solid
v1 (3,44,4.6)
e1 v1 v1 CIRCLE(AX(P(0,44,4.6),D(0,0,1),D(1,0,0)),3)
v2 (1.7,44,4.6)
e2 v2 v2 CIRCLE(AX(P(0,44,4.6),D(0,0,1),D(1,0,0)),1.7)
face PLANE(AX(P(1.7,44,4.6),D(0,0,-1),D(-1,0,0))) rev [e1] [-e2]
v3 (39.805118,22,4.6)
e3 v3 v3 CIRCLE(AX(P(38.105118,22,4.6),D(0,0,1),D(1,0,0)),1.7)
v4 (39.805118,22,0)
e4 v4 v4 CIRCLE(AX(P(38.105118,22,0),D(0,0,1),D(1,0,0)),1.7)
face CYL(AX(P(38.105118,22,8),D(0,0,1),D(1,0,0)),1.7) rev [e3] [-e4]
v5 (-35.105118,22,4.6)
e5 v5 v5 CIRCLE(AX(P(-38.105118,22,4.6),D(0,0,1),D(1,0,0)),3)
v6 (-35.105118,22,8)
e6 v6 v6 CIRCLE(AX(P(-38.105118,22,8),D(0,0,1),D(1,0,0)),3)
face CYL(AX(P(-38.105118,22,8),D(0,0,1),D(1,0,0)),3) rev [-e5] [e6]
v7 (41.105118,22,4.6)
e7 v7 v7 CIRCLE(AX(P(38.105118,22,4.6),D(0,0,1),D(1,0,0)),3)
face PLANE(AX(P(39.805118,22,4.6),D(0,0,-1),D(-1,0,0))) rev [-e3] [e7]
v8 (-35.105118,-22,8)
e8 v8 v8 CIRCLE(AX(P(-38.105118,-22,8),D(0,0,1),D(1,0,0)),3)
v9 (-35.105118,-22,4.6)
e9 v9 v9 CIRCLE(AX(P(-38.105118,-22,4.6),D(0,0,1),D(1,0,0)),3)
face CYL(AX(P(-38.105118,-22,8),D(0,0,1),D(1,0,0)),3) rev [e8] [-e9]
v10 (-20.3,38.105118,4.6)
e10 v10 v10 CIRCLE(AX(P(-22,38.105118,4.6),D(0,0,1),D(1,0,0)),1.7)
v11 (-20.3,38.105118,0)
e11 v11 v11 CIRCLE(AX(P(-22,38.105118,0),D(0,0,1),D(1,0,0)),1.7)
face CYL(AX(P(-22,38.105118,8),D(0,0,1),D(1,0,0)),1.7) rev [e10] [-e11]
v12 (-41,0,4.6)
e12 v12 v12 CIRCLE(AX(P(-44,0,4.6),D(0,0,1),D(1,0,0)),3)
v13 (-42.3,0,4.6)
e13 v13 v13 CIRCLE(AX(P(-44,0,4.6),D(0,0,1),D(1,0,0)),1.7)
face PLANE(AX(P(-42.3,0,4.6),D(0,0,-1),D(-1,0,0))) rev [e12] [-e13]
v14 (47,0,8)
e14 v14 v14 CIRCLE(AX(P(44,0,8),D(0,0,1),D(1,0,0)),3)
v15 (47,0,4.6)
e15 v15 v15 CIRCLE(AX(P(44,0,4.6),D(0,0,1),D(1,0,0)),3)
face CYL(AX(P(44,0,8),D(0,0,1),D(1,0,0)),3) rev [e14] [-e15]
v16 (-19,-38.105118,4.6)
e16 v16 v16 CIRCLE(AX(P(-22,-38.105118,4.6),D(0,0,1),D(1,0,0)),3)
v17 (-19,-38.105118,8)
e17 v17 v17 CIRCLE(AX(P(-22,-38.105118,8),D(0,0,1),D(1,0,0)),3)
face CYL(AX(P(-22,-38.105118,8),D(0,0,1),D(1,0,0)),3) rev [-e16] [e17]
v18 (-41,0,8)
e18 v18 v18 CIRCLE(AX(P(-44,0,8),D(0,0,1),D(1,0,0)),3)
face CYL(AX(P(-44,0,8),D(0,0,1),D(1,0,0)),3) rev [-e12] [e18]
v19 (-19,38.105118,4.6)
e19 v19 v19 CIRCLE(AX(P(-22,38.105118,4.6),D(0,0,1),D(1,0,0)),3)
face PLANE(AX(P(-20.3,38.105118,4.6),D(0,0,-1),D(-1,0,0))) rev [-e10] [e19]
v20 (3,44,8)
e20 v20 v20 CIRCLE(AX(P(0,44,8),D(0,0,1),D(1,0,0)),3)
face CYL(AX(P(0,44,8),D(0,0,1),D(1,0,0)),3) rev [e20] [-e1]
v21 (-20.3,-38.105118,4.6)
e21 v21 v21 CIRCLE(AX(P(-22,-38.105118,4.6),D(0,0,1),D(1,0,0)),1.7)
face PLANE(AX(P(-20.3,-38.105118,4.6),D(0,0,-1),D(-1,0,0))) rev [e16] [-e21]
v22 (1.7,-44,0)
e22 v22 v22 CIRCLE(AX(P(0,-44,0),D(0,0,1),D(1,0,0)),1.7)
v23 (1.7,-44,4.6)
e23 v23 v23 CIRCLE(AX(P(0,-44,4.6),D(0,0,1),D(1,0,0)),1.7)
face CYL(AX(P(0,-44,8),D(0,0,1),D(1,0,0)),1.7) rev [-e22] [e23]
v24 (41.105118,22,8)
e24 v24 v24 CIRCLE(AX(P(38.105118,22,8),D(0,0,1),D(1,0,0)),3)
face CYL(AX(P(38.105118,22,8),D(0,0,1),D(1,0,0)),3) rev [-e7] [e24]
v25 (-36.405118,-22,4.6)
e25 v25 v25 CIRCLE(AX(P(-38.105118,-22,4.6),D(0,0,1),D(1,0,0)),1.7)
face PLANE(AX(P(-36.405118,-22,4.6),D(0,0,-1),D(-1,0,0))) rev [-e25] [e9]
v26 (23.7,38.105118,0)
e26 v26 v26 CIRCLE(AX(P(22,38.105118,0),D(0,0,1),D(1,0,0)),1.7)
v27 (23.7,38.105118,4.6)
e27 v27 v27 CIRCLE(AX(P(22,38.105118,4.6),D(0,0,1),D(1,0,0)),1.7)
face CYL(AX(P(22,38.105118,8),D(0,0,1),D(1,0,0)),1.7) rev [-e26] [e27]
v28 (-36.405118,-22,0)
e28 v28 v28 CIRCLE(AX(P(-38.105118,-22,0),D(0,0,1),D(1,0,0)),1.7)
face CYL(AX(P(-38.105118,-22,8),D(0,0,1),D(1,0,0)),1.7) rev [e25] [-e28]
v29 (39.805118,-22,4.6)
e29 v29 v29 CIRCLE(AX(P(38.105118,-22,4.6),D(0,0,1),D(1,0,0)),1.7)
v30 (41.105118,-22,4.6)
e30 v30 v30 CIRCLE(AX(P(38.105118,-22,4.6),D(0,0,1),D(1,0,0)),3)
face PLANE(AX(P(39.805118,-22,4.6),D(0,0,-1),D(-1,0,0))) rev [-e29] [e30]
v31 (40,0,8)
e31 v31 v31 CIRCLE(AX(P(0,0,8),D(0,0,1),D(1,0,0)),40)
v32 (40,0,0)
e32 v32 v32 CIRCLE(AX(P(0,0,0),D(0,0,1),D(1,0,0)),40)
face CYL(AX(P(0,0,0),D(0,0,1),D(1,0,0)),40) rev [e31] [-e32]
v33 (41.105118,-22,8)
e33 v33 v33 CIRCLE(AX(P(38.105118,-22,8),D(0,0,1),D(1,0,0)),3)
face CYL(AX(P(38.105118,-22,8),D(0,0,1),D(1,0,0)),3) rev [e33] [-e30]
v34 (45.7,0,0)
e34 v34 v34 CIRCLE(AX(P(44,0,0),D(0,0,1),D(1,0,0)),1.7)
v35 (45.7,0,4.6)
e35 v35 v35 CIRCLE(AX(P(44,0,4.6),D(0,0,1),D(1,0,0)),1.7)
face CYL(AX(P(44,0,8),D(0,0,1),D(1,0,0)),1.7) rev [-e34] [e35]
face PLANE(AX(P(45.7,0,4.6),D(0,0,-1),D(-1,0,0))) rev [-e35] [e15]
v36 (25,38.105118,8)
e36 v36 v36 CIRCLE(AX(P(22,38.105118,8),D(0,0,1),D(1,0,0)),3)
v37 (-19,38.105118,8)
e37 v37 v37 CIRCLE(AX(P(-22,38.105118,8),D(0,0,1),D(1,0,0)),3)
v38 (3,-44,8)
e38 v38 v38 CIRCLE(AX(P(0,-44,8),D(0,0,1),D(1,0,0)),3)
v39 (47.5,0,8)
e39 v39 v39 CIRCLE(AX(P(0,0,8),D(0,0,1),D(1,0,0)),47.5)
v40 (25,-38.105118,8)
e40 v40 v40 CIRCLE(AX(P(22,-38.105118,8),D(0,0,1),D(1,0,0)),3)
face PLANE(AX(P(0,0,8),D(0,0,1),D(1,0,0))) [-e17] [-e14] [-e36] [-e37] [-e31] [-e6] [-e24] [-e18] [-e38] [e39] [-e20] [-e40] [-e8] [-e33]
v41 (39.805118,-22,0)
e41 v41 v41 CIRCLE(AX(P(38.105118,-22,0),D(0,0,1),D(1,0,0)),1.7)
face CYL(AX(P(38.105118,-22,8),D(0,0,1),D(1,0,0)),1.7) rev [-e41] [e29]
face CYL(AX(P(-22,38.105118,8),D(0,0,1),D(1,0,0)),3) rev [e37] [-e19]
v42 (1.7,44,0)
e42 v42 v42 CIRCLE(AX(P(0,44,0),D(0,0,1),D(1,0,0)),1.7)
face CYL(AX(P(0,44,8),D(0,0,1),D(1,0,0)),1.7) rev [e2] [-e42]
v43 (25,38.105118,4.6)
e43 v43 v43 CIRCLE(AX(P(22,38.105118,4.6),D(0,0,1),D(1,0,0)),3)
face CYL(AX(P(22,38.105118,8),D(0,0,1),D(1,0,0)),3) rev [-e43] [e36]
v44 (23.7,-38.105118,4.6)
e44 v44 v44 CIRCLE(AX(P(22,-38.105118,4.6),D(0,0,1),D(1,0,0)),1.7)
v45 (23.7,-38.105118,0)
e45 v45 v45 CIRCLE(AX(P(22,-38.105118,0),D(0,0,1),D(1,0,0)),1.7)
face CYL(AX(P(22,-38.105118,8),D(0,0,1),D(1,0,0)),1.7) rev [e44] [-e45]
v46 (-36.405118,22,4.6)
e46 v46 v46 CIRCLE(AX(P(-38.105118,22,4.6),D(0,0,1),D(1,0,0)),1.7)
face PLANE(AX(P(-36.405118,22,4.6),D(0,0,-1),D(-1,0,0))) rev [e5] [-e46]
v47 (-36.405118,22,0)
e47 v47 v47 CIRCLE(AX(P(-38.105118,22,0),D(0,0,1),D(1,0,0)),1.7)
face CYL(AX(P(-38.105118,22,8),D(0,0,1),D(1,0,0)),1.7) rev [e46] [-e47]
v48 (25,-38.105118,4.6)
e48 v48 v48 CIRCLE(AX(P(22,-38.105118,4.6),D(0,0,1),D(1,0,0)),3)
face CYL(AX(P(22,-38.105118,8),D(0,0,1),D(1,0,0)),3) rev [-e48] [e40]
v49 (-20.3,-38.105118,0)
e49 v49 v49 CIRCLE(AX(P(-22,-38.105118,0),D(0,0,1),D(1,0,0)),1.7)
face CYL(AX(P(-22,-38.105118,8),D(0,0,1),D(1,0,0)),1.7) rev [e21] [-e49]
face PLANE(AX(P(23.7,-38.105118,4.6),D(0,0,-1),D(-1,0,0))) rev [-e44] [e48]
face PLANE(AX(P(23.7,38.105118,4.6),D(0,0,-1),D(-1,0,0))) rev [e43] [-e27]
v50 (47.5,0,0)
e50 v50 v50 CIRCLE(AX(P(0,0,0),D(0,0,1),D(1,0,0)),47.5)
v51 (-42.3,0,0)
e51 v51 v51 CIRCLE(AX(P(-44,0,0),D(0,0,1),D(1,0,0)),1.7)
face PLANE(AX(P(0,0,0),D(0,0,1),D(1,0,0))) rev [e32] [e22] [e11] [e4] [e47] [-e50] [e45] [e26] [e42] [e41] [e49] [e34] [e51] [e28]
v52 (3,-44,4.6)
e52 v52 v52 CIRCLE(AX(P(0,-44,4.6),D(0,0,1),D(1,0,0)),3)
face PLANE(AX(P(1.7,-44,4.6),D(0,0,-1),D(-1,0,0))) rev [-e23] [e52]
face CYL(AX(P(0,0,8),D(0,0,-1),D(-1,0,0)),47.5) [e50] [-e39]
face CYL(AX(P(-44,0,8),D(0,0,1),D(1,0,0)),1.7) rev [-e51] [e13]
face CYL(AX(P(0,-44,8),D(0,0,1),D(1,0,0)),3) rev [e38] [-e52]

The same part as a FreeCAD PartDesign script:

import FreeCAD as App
import Part
import Sketcher

V = App.Vector

doc = App.newDocument("Part")
body = doc.addObject("PartDesign::Body", "Body")

# Sketch on XY plane
sketch1 = doc.addObject("Sketcher::SketchObject", "Sketch")
body.addObject(sketch1)
sketch1.AttachmentSupport = (doc.XY_Plane, [""])
sketch1.MapMode = "FlatFace"
sketch1.addGeometry(Part.Circle(V(0, 0, 0), V(0, 0, 1), 48), False)
sketch1.addConstraint([
    Sketcher.Constraint("Coincident", 0, 3, -1, 1),
    Sketcher.Constraint("Diameter", 0, 95.0),
])
pad1 = doc.addObject("PartDesign::Pad", "Pad")
body.addObject(pad1)
pad1.Profile = sketch1
pad1.Length = 8

# Sketch on XY plane
sketch2 = doc.addObject("Sketcher::SketchObject", "Sketch001")
body.addObject(sketch2)
sketch2.AttachmentSupport = (doc.XY_Plane, [""])
sketch2.MapMode = "FlatFace"
sketch2.AttachmentOffset = App.Placement(V(0, 0, 8), App.Rotation())
sketch2.addGeometry(Part.Circle(V(0, 44, 0), V(0, 0, 1), 1.7), False)
sketch2.addConstraint([
    Sketcher.Constraint("PointOnObject", 0, 3, -2),
    Sketcher.Constraint("Diameter", 0, 3.4),
    Sketcher.Constraint("DistanceY", -1, 1, 0, 3, 44.0),
])
doc.recompute()
hole = doc.addObject("PartDesign::Hole", "Hole")
body.addObject(hole)
hole.Profile = sketch2
hole.ThreadType = "None"
hole.Diameter = 3.4
hole.DepthType = "ThroughAll"
hole.HoleCutType = "Counterbore"
hole.HoleCutDiameter = 6
hole.HoleCutDepth = 3.4

# Sketch on XY plane
sketch3 = doc.addObject("Sketcher::SketchObject", "Sketch002")
body.addObject(sketch3)
sketch3.AttachmentSupport = (doc.XY_Plane, [""])
sketch3.MapMode = "FlatFace"
sketch3.AttachmentOffset = App.Placement(V(0, 0, 8), App.Rotation())
sketch3.addGeometry(Part.Circle(V(0, 0, 0), V(0, 0, 1), 40), False)
sketch3.addConstraint([
    Sketcher.Constraint("Coincident", 0, 3, -1, 1),
    Sketcher.Constraint("Diameter", 0, 80.0),
])
pocket1 = doc.addObject("PartDesign::Pocket", "Pocket")
body.addObject(pocket1)
pocket1.Profile = sketch3
pocket1.Type = "ThroughAll"
doc.recompute()

polarpattern = doc.addObject("PartDesign::PolarPattern", "PolarPattern")
body.addObject(polarpattern)
polarpattern.Originals = [hole]
polarpattern.Axis = (doc.Z_Axis, [""])
polarpattern.Angle = 360
polarpattern.Occurrences = 12
body.Tip = polarpattern

doc.recompute()
